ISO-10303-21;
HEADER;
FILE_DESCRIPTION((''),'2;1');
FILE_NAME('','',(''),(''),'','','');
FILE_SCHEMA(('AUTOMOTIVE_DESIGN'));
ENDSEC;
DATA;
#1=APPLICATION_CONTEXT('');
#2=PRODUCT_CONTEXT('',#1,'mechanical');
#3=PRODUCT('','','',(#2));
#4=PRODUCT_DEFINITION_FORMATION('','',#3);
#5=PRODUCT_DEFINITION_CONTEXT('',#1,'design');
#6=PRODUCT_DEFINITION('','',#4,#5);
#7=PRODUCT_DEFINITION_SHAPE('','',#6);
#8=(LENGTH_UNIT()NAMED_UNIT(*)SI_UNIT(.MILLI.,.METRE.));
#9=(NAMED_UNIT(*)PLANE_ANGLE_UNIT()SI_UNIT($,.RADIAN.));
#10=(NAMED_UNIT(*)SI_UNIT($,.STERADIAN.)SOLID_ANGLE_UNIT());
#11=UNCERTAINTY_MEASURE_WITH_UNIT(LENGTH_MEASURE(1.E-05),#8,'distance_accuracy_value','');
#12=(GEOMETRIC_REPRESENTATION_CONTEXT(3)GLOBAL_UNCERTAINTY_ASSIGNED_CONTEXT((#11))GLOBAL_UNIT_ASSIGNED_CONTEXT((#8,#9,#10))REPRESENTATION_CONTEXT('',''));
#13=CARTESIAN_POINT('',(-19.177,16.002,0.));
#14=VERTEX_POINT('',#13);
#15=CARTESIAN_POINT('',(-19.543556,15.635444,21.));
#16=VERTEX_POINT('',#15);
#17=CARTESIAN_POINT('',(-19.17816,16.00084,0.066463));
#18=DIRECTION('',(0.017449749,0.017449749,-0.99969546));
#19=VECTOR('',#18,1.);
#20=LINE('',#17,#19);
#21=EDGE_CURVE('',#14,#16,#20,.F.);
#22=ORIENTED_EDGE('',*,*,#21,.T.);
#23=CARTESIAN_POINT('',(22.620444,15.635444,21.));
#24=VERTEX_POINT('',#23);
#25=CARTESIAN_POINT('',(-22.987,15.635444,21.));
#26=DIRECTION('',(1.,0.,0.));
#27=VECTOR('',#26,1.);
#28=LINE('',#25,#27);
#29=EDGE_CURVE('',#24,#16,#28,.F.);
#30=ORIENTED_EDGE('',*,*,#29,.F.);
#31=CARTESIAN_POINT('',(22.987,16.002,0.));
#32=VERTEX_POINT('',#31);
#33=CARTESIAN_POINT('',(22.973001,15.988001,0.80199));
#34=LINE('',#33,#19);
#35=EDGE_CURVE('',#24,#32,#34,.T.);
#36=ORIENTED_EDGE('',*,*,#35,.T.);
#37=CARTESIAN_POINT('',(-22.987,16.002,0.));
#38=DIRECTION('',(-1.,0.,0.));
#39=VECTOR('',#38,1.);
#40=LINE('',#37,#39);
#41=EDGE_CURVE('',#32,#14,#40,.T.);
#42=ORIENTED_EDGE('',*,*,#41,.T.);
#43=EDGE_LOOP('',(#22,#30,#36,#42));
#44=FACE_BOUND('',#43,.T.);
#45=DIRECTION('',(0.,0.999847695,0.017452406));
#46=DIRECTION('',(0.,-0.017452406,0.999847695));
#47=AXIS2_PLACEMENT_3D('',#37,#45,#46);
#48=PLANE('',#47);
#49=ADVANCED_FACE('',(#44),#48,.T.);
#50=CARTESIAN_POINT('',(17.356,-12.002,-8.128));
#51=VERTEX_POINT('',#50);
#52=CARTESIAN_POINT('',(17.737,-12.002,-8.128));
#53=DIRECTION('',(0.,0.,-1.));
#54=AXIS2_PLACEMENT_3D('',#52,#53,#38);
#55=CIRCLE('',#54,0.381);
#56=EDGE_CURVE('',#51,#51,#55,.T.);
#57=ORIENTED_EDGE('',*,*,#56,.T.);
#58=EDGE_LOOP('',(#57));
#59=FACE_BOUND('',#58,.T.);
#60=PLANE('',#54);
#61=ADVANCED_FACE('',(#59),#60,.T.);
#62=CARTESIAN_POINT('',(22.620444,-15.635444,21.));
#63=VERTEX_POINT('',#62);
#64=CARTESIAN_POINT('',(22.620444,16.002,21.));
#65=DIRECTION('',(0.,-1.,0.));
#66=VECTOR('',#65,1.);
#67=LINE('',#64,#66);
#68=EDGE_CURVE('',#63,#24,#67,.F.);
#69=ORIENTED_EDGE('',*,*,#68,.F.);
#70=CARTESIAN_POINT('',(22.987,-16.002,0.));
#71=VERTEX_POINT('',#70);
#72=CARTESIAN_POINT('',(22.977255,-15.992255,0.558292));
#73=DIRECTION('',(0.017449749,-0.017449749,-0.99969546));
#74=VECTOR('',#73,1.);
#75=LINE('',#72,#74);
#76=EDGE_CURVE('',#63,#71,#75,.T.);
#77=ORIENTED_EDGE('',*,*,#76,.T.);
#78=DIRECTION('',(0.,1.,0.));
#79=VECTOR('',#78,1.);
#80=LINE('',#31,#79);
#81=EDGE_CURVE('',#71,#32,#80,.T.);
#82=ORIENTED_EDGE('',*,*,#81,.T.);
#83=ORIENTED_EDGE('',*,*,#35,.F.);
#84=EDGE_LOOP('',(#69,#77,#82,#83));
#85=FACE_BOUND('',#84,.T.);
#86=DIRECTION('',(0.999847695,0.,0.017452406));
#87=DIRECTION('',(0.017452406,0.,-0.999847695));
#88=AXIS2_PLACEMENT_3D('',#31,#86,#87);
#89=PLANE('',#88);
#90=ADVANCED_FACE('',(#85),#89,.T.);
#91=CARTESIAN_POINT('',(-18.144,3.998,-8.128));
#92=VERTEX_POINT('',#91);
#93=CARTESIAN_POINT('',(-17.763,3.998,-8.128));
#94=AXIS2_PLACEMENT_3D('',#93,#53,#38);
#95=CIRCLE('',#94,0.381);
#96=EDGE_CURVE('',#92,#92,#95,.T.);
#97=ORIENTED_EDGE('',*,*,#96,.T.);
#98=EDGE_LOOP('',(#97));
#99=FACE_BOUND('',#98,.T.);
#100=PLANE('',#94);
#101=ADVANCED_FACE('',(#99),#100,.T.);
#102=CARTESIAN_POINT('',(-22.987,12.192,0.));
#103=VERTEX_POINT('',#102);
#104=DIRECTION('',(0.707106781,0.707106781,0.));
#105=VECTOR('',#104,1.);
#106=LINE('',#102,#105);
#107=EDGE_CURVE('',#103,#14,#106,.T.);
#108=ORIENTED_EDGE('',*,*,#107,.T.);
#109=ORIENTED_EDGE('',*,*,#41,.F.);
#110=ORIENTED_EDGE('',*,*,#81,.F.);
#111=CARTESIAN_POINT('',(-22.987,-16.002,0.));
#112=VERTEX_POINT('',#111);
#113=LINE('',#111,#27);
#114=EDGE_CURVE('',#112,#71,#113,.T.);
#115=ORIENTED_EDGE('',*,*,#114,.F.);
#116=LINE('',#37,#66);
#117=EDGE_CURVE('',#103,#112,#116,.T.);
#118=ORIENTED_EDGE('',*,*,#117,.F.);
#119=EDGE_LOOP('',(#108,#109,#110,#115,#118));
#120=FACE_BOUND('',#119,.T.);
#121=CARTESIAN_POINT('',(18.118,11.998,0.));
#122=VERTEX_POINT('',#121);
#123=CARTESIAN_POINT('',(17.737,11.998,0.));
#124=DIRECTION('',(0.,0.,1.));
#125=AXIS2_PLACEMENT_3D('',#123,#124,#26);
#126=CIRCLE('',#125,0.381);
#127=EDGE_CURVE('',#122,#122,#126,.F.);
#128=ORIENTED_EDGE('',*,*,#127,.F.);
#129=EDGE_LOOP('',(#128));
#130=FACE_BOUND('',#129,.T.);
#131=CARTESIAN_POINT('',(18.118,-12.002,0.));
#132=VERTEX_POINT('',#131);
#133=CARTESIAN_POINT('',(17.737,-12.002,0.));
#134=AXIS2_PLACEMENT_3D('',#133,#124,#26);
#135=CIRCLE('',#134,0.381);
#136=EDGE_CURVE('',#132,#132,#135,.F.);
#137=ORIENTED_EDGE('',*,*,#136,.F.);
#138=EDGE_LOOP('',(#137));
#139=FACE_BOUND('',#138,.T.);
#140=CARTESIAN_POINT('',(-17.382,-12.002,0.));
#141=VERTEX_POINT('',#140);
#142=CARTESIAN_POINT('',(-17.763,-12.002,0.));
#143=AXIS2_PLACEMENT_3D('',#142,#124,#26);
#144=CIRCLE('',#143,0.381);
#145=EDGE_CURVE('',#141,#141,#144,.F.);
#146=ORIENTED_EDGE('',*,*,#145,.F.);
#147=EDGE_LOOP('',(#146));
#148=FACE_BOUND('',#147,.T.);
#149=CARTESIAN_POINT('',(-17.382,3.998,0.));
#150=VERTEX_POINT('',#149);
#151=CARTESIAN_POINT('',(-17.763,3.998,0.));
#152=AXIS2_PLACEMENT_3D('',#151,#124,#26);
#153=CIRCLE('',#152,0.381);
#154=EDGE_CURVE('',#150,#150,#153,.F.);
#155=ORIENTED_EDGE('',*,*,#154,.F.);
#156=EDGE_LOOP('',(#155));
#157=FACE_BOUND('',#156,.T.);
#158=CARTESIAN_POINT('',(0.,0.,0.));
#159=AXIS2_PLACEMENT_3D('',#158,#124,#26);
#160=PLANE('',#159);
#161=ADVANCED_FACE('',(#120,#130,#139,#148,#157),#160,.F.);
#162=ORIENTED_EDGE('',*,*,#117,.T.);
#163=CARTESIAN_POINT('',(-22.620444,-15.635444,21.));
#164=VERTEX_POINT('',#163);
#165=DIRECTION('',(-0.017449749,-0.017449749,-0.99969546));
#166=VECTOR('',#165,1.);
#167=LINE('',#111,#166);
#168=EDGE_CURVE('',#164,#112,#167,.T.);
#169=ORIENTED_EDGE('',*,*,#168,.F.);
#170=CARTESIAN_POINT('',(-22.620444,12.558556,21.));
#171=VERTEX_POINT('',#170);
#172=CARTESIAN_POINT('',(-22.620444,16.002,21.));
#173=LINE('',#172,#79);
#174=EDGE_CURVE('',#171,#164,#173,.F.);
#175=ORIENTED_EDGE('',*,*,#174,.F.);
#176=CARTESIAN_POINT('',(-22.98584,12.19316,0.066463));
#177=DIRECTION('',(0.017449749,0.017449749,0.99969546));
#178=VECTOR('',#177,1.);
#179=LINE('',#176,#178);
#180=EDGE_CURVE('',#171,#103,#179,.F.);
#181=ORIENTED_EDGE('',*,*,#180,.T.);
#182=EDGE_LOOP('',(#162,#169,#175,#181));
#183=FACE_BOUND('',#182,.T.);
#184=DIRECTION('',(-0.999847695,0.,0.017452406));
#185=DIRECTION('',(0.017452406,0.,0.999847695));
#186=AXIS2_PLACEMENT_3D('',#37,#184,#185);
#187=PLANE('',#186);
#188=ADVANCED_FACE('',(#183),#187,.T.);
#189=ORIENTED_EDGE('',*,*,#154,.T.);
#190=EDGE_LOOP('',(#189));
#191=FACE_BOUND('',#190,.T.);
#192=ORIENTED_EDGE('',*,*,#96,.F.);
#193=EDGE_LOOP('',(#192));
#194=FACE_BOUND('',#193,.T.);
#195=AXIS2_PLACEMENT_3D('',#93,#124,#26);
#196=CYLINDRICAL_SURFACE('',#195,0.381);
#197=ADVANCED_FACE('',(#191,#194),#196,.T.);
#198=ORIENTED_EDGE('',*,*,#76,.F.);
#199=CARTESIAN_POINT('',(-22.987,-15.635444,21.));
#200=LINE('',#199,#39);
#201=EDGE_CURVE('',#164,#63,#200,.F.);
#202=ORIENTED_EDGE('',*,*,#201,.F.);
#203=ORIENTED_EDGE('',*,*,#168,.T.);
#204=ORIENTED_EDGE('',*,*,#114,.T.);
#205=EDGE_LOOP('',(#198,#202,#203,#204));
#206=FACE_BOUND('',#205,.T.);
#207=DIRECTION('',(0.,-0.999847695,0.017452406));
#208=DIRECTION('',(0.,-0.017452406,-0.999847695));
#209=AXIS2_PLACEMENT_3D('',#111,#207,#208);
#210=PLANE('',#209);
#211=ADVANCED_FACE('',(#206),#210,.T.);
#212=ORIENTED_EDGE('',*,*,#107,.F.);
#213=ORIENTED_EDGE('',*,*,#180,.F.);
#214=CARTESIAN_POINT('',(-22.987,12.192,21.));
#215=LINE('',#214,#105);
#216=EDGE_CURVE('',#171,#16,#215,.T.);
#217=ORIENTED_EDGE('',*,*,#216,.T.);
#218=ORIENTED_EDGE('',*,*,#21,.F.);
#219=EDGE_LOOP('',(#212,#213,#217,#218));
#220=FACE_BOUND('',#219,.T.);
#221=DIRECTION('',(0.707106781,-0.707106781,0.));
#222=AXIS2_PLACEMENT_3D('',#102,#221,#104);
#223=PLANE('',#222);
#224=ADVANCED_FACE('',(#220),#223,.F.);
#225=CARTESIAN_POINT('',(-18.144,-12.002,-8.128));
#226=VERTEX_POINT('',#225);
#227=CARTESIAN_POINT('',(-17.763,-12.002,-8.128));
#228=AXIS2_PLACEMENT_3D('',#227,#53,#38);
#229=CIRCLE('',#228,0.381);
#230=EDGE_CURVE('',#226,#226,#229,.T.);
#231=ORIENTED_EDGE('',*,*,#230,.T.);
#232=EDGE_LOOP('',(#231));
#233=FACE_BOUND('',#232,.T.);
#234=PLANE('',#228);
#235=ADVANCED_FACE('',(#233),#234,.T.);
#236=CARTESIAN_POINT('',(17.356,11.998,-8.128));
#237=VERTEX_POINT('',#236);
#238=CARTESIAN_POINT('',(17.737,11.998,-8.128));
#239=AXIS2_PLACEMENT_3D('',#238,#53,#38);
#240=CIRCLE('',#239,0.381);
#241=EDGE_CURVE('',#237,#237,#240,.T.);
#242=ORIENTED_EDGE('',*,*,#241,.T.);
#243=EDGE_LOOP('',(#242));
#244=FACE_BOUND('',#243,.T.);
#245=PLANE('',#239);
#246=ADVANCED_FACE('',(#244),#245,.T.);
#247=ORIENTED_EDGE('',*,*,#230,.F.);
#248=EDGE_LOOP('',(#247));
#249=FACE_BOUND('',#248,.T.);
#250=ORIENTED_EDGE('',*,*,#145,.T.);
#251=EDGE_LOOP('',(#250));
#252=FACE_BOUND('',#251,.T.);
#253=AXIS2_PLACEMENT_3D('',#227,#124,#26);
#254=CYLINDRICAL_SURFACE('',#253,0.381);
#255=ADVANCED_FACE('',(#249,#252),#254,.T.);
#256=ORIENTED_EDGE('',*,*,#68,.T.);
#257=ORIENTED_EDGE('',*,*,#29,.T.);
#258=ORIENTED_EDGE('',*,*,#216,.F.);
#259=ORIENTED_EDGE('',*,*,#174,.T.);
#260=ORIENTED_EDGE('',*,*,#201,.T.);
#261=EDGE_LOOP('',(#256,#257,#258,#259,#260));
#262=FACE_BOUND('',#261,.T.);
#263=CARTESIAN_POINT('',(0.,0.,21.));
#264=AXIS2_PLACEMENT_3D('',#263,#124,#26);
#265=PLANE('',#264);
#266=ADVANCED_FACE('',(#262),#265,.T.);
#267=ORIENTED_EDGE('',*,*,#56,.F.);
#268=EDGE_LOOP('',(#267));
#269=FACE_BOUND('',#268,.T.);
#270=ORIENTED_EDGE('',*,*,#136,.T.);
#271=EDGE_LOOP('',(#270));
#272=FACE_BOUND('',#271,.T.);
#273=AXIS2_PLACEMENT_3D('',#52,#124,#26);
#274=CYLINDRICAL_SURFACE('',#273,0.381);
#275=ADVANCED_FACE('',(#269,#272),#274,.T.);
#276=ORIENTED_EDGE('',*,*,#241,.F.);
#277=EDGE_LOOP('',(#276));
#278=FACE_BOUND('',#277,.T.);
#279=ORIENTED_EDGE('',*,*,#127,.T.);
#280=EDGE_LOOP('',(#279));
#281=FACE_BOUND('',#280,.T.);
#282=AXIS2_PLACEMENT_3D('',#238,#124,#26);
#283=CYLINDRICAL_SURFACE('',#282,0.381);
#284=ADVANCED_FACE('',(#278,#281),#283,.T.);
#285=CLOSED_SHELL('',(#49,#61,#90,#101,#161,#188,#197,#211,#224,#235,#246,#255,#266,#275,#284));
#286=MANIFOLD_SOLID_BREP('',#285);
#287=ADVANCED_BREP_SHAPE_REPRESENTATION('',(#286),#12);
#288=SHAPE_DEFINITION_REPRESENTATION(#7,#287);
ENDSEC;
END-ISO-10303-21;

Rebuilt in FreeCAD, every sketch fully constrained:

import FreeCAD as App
import Part
import Sketcher

V = App.Vector
Q = App.Units.Quantity

doc = App.newDocument("Part")
body = doc.addObject("PartDesign::Body", "Body")

# Sketch on XY plane
sketch1 = body.newObject("Sketcher::SketchObject", "Sketch")
sketch1.AttachmentSupport = (doc.getObject("XY_Plane"), [""])
sketch1.MapMode = "FlatFace"
sketch1.addGeometry([
    Part.LineSegment(V(-23, 16, 0), V(-23, -16, 0)),
    Part.LineSegment(V(-23, -16, 0), V(23, -16, 0)),
    Part.LineSegment(V(23, -16, 0), V(23, 16, 0)),
    Part.LineSegment(V(23, 16, 0), V(-23, 16, 0)),
], False)
sketch1.addConstraint([
    Sketcher.Constraint("Coincident", 0, 2, 1, 1),
    Sketcher.Constraint("Coincident", 1, 2, 2, 1),
    Sketcher.Constraint("Coincident", 2, 2, 3, 1),
    Sketcher.Constraint("Coincident", 3, 2, 0, 1),
    Sketcher.Constraint("Vertical", 0),
    Sketcher.Constraint("Horizontal", 1),
    Sketcher.Constraint("Vertical", 2),
    Sketcher.Constraint("Horizontal", 3),
    Sketcher.Constraint("Symmetric", 0, 2, 2, 2, -1, 1),
    Sketcher.Constraint("DistanceX", 1, 1, 1, 2, Q("1.81 in")),
    Sketcher.Constraint("DistanceY", 0, 2, 0, 1, Q("1.26 in")),
])
pad1 = body.newObject("PartDesign::Pad", "Pad")
pad1.Profile = sketch1
pad1.Length = 21
pad1.TaperAngle = -1

# Sketch on XY plane
sketch2 = body.newObject("Sketcher::SketchObject", "Sketch001")
sketch2.AttachmentSupport = (doc.getObject("XY_Plane"), [""])
sketch2.MapMode = "FlatFace"
sketch2.AttachmentOffset = App.Placement(V(0, 0, 21), App.Rotation())
sketch2.addGeometry([
    Part.LineSegment(V(-19.2, 16, 0), V(-23, 16, 0)),
    Part.LineSegment(V(-23, 16, 0), V(-23, 12.2, 0)),
    Part.LineSegment(V(-23, 12.2, 0), V(-19.2, 16, 0)),
], False)
sketch2.addConstraint([
    Sketcher.Constraint("Coincident", 0, 2, 1, 1),
    Sketcher.Constraint("Coincident", 1, 2, 2, 1),
    Sketcher.Constraint("Coincident", 2, 2, 0, 1),
    Sketcher.Constraint("Horizontal", 0),
    Sketcher.Constraint("Vertical", 1),
    Sketcher.Constraint("Equal", 0, 1),
    Sketcher.Constraint("DistanceX", 0, 2, 0, 1, Q("0.15 in")),
    Sketcher.Constraint("DistanceY", -1, 1, 0, 2, Q("0.63 in")),
    Sketcher.Constraint("DistanceX", 0, 2, -1, 1, Q("0.905 in")),
])
pocket1 = body.newObject("PartDesign::Pocket", "Pocket")
pocket1.Profile = sketch2
pocket1.Type = "ThroughAll"

# Sketch on XY plane
sketch3 = body.newObject("Sketcher::SketchObject", "Sketch002")
sketch3.AttachmentSupport = (doc.getObject("XY_Plane"), [""])
sketch3.MapMode = "FlatFace"
sketch3.addGeometry([
    Part.Circle(V(17.74, 12, 0), V(0, 0, 1), 0.38),
    Part.Circle(V(-17.76, 4, 0), V(0, 0, 1), 0.38),
    Part.Circle(V(-17.76, -12, 0), V(0, 0, 1), 0.38),
    Part.Circle(V(17.74, -12, 0), V(0, 0, 1), 0.38),
], False)
sketch3.addConstraint([
    Sketcher.Constraint("Equal", 0, 1),
    Sketcher.Constraint("Equal", 1, 2),
    Sketcher.Constraint("Equal", 2, 3),
    Sketcher.Constraint("Horizontal", 2, 3, 3, 3),
    Sketcher.Constraint("Vertical", 1, 3, 2, 3),
    Sketcher.Constraint("Vertical", 0, 3, 3, 3),
    Sketcher.Constraint("Diameter", 0, Q("0.03 in")),
    Sketcher.Constraint("DistanceX", -1, 1, 0, 3, Q("17.737 mm")),
    Sketcher.Constraint("DistanceY", -1, 1, 0, 3, Q("11.998 mm")),
    Sketcher.Constraint("DistanceX", 1, 3, -1, 1, Q("17.763 mm")),
    Sketcher.Constraint("DistanceY", -1, 1, 1, 3, Q("3.998 mm")),
    Sketcher.Constraint("DistanceY", 2, 3, -1, 1, Q("12.002 mm")),
])
pad2 = body.newObject("PartDesign::Pad", "Pad001")
pad2.Profile = sketch3
pad2.Length = Q("0.32 in")
pad2.Reversed = True

doc.recompute()
